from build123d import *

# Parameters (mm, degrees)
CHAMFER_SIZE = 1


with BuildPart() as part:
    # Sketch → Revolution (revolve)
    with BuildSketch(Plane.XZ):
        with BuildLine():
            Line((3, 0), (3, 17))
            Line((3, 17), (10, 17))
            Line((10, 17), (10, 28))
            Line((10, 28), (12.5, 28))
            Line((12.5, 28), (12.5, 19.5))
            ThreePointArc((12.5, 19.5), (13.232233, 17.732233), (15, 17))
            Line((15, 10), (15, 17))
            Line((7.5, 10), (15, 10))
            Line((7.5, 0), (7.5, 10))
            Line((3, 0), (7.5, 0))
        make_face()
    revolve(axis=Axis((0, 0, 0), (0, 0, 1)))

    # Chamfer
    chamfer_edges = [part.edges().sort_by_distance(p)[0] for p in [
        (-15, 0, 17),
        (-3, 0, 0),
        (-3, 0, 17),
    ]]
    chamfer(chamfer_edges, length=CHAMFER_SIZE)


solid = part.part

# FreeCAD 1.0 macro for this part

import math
import FreeCAD as App
import Part
import Sketcher
from FreeCAD import Vector


def edges_at(feature, points):
    """Names of the edges that pass closest to the given points."""
    edges = feature.Shape.Edges
    near = lambda p: min(range(len(edges)), key=lambda i: edges[i].distToShape(Part.Vertex(*p))[0])
    return sorted({f"Edge{near(p) + 1}" for p in points})

doc = App.newDocument("Part")
params = doc.addObject("Spreadsheet::Sheet", "Params")
for row, (alias, value) in enumerate([
    ("sketch1_radius", "2.5 mm"),
    ("sketch1_width", "7 mm"),
    ("sketch1_height", "17 mm"),
    ("sketch1_height2", "11 mm"),
    ("sketch1_width2", "4.5 mm"),
    ("revolution_angle", "360 deg"),
    ("chamfer_size", "1 mm"),
], start=1):
    params.set(f"A{row}", alias)
    params.set(f"B{row}", "=" + value)
    params.setAlias(f"B{row}", alias)

body = doc.addObject("PartDesign::Body", "Body")

sketch1 = doc.addObject("Sketcher::SketchObject", "Sketch")
body.addObject(sketch1)
sketch1.AttachmentSupport = (doc.XZ_Plane, [""])
sketch1.MapMode = "FlatFace"
sketch1.addGeometry(Part.LineSegment(Vector(3, 17, 0), Vector(3, 0, 0)), False)
sketch1.addGeometry(Part.LineSegment(Vector(3, 0, 0), Vector(7.5, 0, 0)), False)
sketch1.addGeometry(Part.LineSegment(Vector(7.5, 0, 0), Vector(7.5, 10, 0)), False)
sketch1.addGeometry(Part.LineSegment(Vector(7.5, 10, 0), Vector(15, 10, 0)), False)
sketch1.addGeometry(Part.LineSegment(Vector(15, 10, 0), Vector(15, 17, 0)), False)
sketch1.addGeometry(Part.ArcOfCircle(Part.Circle(Vector(15, 19.5, 0), Vector(0, 0, 1), 2.5), math.radians(180), math.radians(270)), False)
sketch1.addGeometry(Part.LineSegment(Vector(12.5, 19.5, 0), Vector(12.5, 28, 0)), False)
sketch1.addGeometry(Part.LineSegment(Vector(12.5, 28, 0), Vector(10, 28, 0)), False)
sketch1.addGeometry(Part.LineSegment(Vector(10, 28, 0), Vector(10, 17, 0)), False)
sketch1.addGeometry(Part.LineSegment(Vector(10, 17, 0), Vector(3, 17, 0)), False)
sketch1.addConstraint(Sketcher.Constraint("Coincident", 0, 2, 1, 1))
sketch1.addConstraint(Sketcher.Constraint("Coincident", 1, 2, 2, 1))
sketch1.addConstraint(Sketcher.Constraint("Coincident", 2, 2, 3, 1))
sketch1.addConstraint(Sketcher.Constraint("Coincident", 3, 2, 4, 1))
sketch1.addConstraint(Sketcher.Constraint("Coincident", 4, 2, 5, 2))
sketch1.addConstraint(Sketcher.Constraint("Tangent", 5, 1, 6, 1))
sketch1.addConstraint(Sketcher.Constraint("Coincident", 6, 2, 7, 1))
sketch1.addConstraint(Sketcher.Constraint("Coincident", 7, 2, 8, 1))
sketch1.addConstraint(Sketcher.Constraint("Coincident", 8, 2, 9, 1))
sketch1.addConstraint(Sketcher.Constraint("Coincident", 9, 2, 0, 1))
sketch1.addConstraint(Sketcher.Constraint("Vertical", 0))
sketch1.addConstraint(Sketcher.Constraint("Horizontal", 1))
sketch1.addConstraint(Sketcher.Constraint("Vertical", 2))
sketch1.addConstraint(Sketcher.Constraint("Horizontal", 3))
sketch1.addConstraint(Sketcher.Constraint("Vertical", 4))
sketch1.addConstraint(Sketcher.Constraint("Vertical", 6))
sketch1.addConstraint(Sketcher.Constraint("Horizontal", 7))
sketch1.addConstraint(Sketcher.Constraint("Vertical", 8))
sketch1.addConstraint(Sketcher.Constraint("Horizontal", 9))
sketch1.addConstraint(Sketcher.Constraint("PointOnObject", 0, 2, -1))
sketch1.addConstraint(Sketcher.Constraint("Horizontal", 4, 2, 8, 2))
sketch1.addConstraint(Sketcher.Constraint("Vertical", 5, 3, 3, 2))
sketch1.addConstraint(Sketcher.Constraint("Equal", 9, 4))
sketch1.addConstraint(Sketcher.Constraint("Radius", 5, 2.5))
sketch1.addConstraint(Sketcher.Constraint("DistanceX", 9, 2, 9, 1, 7.0))
sketch1.addConstraint(Sketcher.Constraint("DistanceY", 0, 2, 0, 1, 17.0))
sketch1.addConstraint(Sketcher.Constraint("DistanceY", 8, 2, 8, 1, 11.0))
sketch1.addConstraint(Sketcher.Constraint("DistanceX", 1, 1, 1, 2, 4.5))
sketch1.addConstraint(Sketcher.Constraint("DistanceX", 3, 1, 3, 2, 7.5))
sketch1.addConstraint(Sketcher.Constraint("DistanceX", -1, 1, 5, 3, 15.0))
sketch1.setExpression("Constraints[23]", "Params.sketch1_radius")
sketch1.setExpression("Constraints[24]", "Params.sketch1_width")
sketch1.setExpression("Constraints[25]", "Params.sketch1_height")
sketch1.setExpression("Constraints[26]", "Params.sketch1_height2")
sketch1.setExpression("Constraints[27]", "Params.sketch1_width2")
revolution = doc.addObject("PartDesign::Revolution", "Revolution")
body.addObject(revolution)
revolution.Profile = sketch1
revolution.ReferenceAxis = (sketch1, ["V_Axis"])
revolution.setExpression("Angle", "Params.revolution_angle")
doc.recompute()

chamfer = doc.addObject("PartDesign::Chamfer", "Chamfer")
body.addObject(chamfer)
chamfer.Base = (revolution, edges_at(revolution, [(-15, 0, 17), (-3, 0, 0), (-3, 0, 17)]))
chamfer.setExpression("Size", "Params.chamfer_size")

doc.recompute()
